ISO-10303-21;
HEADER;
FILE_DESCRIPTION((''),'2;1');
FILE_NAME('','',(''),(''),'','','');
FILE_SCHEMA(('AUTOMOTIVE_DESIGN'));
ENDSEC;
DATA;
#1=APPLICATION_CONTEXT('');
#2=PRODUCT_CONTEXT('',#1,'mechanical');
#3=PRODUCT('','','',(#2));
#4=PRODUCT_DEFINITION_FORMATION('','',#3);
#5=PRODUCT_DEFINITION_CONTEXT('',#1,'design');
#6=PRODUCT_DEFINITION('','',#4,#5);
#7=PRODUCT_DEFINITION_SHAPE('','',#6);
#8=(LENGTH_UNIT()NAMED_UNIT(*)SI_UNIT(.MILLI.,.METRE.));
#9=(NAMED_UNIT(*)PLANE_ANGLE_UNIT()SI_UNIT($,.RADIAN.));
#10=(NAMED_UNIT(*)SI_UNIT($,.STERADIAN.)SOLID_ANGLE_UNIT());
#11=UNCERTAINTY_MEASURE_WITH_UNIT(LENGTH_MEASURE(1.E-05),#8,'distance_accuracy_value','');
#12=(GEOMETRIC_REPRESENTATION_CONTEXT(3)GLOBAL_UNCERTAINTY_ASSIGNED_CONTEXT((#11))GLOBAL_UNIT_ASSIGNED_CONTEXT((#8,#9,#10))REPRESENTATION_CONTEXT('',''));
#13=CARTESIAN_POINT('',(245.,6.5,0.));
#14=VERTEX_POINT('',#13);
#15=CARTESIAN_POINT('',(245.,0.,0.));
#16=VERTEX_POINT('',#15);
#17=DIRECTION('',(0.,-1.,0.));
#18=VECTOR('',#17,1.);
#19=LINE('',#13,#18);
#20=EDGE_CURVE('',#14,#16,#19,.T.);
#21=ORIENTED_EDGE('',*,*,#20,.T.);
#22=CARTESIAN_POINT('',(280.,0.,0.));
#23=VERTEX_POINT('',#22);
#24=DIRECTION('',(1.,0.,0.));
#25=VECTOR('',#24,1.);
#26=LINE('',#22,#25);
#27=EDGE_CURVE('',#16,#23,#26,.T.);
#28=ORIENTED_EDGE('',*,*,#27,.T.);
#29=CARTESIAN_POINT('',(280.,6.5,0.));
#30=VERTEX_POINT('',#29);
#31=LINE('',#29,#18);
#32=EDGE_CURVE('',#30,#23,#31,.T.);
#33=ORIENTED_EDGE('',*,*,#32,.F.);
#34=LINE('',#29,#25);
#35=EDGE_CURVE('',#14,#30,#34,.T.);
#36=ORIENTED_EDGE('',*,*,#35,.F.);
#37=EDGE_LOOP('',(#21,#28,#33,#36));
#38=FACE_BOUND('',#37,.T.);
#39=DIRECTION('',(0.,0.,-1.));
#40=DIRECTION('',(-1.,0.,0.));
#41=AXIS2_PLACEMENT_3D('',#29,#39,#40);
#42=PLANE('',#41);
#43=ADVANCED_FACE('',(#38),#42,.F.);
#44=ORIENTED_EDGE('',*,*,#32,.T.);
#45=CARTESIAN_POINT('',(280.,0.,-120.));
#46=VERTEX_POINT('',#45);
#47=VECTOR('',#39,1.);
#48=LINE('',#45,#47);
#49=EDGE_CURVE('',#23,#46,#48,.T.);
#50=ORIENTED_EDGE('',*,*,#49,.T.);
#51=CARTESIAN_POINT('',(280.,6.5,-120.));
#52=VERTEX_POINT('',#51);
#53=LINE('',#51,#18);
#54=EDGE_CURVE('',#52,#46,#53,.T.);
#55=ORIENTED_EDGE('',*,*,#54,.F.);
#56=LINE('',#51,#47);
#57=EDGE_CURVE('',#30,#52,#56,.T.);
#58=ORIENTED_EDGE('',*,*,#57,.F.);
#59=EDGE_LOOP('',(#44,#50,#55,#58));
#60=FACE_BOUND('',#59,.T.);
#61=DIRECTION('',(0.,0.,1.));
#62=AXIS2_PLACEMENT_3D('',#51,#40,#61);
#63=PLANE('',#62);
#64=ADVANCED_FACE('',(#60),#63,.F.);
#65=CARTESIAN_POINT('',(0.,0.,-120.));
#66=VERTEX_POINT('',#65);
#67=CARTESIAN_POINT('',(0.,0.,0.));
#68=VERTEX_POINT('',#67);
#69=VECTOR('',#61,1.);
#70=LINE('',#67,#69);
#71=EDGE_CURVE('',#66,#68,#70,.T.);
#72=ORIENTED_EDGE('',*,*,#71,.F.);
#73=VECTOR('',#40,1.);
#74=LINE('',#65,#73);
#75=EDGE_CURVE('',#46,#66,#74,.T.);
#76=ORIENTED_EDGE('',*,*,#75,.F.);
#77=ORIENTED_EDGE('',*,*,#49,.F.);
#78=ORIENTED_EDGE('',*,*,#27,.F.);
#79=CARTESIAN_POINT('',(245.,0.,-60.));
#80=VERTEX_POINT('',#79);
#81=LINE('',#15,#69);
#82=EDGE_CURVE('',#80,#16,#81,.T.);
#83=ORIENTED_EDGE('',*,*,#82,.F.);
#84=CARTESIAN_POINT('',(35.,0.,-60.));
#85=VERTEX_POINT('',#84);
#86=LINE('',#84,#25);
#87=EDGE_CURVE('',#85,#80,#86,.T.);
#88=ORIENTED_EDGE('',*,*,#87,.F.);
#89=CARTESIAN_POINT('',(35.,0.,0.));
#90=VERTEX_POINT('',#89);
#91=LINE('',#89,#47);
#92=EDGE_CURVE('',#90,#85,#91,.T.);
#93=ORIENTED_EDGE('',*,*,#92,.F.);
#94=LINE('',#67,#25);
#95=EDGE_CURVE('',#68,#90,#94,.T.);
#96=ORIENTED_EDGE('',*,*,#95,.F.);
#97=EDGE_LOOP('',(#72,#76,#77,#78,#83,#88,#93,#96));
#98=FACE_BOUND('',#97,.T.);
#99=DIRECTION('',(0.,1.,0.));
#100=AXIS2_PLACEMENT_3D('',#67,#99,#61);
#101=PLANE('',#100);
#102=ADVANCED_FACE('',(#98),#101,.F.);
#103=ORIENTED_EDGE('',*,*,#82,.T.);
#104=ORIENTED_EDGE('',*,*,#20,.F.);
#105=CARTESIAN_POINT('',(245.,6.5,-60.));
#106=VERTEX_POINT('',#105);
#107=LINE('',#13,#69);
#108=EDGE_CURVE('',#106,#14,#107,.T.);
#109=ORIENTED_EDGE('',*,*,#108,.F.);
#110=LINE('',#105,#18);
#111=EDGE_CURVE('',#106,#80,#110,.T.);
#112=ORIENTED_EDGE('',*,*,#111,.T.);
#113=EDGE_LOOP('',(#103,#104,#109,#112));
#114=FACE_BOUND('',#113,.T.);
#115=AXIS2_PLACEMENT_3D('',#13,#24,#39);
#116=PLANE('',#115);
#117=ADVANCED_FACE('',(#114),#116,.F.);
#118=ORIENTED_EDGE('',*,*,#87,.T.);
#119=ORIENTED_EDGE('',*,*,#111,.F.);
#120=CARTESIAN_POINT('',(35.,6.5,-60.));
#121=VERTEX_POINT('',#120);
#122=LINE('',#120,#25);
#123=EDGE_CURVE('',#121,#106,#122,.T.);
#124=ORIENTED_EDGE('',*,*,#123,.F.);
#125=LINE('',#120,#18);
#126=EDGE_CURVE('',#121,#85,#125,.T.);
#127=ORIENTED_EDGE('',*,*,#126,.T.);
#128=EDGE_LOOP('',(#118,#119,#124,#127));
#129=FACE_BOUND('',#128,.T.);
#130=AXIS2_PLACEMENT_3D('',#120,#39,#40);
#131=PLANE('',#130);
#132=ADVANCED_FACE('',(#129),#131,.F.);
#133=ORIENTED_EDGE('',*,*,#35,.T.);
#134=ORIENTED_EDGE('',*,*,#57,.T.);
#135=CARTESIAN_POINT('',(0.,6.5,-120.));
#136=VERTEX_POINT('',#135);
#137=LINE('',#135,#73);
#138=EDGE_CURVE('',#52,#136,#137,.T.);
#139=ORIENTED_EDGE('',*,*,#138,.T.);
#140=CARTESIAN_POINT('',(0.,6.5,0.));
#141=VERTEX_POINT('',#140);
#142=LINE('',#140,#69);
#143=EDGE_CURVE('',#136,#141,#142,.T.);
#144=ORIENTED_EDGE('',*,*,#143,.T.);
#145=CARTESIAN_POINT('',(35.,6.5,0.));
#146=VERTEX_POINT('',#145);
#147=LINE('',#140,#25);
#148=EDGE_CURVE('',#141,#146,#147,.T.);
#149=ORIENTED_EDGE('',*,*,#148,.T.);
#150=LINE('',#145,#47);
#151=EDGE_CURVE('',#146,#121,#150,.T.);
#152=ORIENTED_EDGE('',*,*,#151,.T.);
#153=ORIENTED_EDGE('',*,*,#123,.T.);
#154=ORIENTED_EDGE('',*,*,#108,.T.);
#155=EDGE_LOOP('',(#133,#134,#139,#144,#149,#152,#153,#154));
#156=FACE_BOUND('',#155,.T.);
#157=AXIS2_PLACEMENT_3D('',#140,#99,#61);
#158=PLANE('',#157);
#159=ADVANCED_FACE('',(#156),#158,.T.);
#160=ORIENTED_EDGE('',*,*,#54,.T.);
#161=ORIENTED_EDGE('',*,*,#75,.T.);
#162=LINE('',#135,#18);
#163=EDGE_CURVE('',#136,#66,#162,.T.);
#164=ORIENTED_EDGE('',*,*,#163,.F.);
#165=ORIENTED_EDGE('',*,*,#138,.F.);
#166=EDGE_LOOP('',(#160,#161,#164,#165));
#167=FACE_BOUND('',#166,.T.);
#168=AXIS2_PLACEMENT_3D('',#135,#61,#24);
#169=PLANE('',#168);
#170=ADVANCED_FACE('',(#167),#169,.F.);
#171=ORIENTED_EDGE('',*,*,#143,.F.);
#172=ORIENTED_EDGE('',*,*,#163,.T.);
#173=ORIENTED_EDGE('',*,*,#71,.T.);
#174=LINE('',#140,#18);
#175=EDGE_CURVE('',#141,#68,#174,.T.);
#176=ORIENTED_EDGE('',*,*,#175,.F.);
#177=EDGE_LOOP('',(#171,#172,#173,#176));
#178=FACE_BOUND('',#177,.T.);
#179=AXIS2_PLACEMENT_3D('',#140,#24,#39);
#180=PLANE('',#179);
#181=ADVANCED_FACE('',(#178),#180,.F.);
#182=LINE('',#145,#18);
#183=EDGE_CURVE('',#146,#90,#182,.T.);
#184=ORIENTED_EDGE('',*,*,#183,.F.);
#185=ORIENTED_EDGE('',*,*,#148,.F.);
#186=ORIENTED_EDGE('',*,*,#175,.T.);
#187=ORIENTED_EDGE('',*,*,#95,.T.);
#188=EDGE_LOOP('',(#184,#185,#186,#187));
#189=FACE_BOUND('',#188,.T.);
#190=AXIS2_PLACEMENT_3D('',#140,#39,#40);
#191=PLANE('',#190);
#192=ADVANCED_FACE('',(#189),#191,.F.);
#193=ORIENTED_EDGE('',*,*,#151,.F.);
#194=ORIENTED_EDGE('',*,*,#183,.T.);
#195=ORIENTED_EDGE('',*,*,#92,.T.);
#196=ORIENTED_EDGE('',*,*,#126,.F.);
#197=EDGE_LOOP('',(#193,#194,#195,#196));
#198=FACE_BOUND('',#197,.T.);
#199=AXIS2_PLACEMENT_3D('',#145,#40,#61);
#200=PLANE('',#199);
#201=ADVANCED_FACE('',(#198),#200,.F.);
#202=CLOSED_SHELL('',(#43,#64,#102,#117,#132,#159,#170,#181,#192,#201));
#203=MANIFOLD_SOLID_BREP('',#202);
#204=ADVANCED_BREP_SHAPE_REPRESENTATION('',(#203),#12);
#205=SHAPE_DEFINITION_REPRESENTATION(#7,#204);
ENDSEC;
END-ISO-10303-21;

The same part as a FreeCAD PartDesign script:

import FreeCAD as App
import Part
import Sketcher

doc = App.newDocument("Part")
body = doc.addObject("PartDesign::Body", "Body")

# Sketch on XZ plane
sketch1 = body.newObject("Sketcher::SketchObject", "Sketch")
sketch1.AttachmentSupport = (doc.getObject("XZ_Plane"), [""])
sketch1.MapMode = "FlatFace"
sketch1.addGeometry([
    Part.LineSegment(App.Vector(0, -120, 0), App.Vector(0, 0, 0)),  # 0
    Part.LineSegment(App.Vector(0, 0, 0), App.Vector(35, 0, 0)),  # 1
    Part.LineSegment(App.Vector(35, 0, 0), App.Vector(35, -60, 0)),  # 2
    Part.LineSegment(App.Vector(35, -60, 0), App.Vector(245, -60, 0)),  # 3
    Part.LineSegment(App.Vector(245, -60, 0), App.Vector(245, 0, 0)),  # 4
    Part.LineSegment(App.Vector(245, 0, 0), App.Vector(280, 0, 0)),  # 5
    Part.LineSegment(App.Vector(280, 0, 0), App.Vector(280, -120, 0)),  # 6
    Part.LineSegment(App.Vector(280, -120, 0), App.Vector(0, -120, 0)),  # 7
], False)
sketch1.addConstraint([
    Sketcher.Constraint("Coincident", 0, 2, 1, 1),
    Sketcher.Constraint("Coincident", 1, 2, 2, 1),
    Sketcher.Constraint("Coincident", 2, 2, 3, 1),
    Sketcher.Constraint("Coincident", 3, 2, 4, 1),
    Sketcher.Constraint("Coincident", 4, 2, 5, 1),
    Sketcher.Constraint("Coincident", 5, 2, 6, 1),
    Sketcher.Constraint("Coincident", 6, 2, 7, 1),
    Sketcher.Constraint("Coincident", 7, 2, 0, 1),
    Sketcher.Constraint("Vertical", 0),
    Sketcher.Constraint("Horizontal", 1),
    Sketcher.Constraint("Vertical", 2),
    Sketcher.Constraint("Horizontal", 3),
    Sketcher.Constraint("Vertical", 4),
    Sketcher.Constraint("Horizontal", 5),
    Sketcher.Constraint("Vertical", 6),
    Sketcher.Constraint("Horizontal", 7),
    Sketcher.Constraint("Coincident", 0, 2, -1, 1),
    Sketcher.Constraint("PointOnObject", 4, 2, -1),
    Sketcher.Constraint("Equal", 1, 5),
    Sketcher.Constraint("DistanceX", 1, 1, 1, 2, 35.0),
    Sketcher.Constraint("DistanceX", 3, 1, 3, 2, 210.0),
    Sketcher.Constraint("DistanceY", 0, 1, 0, 2, 120.0),
    Sketcher.Constraint("DistanceY", 2, 2, 2, 1, 60.0),
])
pad1 = body.newObject("PartDesign::Pad", "Pad")
pad1.Profile = sketch1
pad1.Length = 6.5
pad1.Reversed = True

doc.recompute()
